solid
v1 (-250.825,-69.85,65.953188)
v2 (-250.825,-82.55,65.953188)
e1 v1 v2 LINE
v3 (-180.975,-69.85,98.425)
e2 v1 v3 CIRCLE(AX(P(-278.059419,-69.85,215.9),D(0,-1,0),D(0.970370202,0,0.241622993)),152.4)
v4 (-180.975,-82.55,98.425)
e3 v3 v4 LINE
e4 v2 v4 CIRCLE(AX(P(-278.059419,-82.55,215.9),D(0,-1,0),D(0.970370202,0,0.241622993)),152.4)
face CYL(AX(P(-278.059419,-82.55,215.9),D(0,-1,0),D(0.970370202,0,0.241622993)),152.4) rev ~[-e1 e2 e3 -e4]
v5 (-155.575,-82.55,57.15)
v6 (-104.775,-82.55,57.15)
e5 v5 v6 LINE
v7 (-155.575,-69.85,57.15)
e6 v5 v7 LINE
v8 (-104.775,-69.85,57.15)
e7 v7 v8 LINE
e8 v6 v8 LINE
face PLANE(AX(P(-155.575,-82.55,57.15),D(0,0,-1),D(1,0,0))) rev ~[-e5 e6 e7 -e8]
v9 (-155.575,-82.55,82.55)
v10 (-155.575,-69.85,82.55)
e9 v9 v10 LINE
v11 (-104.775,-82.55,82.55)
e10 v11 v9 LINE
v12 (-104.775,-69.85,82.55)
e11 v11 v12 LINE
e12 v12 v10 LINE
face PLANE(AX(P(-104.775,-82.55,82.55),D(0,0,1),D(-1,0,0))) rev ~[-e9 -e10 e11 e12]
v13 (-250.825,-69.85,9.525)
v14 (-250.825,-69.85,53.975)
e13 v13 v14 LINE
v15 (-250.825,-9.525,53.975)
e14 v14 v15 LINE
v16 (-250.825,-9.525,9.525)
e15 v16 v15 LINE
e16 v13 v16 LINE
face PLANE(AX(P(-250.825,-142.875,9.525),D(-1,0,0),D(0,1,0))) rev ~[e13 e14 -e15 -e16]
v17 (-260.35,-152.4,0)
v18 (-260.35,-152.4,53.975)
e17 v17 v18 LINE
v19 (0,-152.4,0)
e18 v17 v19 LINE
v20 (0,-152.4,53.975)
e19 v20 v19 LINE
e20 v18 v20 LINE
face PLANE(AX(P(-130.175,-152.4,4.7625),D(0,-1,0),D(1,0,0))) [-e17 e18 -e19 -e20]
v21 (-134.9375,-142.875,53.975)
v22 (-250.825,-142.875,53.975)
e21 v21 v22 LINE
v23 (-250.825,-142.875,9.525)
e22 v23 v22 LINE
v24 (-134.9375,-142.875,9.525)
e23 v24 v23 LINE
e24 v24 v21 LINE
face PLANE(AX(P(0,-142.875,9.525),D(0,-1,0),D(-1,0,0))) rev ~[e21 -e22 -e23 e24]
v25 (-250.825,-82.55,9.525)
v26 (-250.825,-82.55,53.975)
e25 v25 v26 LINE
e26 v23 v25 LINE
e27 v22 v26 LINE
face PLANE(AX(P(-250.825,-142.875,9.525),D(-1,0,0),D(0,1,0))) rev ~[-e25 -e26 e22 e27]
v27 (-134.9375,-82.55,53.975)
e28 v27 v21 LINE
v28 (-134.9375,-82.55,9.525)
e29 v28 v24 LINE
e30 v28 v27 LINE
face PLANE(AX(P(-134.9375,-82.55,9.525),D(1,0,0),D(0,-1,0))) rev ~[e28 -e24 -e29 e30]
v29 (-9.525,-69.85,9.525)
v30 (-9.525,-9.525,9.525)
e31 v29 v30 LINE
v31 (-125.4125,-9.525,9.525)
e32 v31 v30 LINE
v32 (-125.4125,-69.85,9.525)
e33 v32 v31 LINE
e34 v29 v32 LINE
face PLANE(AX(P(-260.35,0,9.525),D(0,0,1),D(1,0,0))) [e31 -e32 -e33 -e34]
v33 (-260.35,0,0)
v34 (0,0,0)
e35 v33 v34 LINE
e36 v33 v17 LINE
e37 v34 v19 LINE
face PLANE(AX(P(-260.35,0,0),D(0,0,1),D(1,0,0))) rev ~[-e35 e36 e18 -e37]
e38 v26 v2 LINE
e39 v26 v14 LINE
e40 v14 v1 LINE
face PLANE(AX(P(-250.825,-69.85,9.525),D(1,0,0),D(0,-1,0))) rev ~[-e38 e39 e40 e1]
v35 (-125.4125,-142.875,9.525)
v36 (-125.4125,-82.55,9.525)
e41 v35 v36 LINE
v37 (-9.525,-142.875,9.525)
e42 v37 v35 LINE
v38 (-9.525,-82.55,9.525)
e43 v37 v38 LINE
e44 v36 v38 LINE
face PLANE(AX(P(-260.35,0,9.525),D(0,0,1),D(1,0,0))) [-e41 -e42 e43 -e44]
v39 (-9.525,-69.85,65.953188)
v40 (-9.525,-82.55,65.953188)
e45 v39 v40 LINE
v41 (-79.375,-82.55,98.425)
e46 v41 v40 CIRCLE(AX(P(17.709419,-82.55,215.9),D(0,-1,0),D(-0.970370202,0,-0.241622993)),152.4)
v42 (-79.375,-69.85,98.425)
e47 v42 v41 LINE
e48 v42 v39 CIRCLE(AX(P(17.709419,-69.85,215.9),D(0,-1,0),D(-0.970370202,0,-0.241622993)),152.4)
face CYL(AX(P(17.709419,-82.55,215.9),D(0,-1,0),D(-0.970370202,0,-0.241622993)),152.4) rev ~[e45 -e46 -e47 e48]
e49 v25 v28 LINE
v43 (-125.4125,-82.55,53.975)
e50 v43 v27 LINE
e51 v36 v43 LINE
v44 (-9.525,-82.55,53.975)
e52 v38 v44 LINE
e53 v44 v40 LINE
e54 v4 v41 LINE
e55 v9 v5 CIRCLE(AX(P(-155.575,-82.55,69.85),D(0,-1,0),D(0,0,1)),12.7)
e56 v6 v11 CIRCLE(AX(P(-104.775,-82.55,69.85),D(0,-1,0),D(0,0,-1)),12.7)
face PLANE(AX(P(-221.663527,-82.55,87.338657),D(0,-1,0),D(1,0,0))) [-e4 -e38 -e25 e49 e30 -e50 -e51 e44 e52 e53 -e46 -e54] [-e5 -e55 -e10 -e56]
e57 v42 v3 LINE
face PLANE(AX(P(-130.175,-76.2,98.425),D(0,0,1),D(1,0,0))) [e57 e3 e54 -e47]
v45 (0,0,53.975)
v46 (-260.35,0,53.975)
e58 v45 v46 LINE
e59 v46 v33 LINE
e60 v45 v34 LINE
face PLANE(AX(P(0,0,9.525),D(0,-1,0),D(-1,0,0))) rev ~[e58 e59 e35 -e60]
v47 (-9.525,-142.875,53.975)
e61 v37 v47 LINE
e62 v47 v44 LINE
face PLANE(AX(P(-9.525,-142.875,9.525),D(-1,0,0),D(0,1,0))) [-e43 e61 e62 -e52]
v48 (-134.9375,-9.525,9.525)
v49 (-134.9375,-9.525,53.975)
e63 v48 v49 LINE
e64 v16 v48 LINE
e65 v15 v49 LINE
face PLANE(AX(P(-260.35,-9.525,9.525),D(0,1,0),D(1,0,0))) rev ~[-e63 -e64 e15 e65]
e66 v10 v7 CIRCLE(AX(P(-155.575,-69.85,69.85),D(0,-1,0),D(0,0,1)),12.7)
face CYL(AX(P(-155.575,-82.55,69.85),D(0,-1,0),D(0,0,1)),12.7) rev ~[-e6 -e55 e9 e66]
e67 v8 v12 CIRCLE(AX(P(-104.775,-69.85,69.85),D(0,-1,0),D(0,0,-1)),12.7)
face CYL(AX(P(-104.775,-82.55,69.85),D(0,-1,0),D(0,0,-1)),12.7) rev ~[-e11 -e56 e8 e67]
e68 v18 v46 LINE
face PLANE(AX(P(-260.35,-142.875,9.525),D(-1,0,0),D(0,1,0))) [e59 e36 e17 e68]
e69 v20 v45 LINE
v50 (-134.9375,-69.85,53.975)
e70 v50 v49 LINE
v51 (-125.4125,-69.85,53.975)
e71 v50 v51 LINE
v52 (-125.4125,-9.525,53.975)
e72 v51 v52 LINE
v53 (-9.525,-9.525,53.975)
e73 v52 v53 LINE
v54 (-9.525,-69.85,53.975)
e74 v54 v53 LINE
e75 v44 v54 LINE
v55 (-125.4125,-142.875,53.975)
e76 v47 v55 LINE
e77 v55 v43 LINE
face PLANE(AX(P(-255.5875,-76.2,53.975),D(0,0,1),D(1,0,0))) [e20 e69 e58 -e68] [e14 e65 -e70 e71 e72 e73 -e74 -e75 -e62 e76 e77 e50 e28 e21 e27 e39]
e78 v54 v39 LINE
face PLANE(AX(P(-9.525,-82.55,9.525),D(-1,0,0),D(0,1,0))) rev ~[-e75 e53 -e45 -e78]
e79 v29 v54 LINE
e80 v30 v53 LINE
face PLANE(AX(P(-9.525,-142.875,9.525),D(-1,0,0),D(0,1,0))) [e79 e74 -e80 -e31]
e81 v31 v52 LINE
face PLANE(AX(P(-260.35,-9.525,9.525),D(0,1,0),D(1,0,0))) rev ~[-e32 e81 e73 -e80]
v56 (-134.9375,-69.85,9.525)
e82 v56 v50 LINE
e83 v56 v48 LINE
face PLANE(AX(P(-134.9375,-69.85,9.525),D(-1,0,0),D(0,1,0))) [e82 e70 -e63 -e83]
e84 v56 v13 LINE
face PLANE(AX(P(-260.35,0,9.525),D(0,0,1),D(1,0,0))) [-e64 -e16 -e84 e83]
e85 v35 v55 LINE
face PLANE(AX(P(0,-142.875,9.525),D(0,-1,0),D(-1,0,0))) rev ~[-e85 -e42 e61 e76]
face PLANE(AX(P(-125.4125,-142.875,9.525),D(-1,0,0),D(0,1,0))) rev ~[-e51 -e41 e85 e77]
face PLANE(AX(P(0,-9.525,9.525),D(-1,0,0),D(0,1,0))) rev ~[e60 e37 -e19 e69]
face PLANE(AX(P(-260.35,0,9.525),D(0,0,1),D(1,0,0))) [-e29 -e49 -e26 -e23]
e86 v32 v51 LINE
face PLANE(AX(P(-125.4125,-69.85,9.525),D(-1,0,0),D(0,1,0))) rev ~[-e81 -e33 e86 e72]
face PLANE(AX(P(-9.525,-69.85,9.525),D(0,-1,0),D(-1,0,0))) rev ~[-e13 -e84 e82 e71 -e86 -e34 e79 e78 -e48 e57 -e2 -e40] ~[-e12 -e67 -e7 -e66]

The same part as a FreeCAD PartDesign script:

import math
import FreeCAD as App
import Part
import Sketcher
from FreeCAD import Vector
Q = App.Units.Quantity


def add_polygon(sketch, points):
    """Adds a closed chain of lines whose ends are joined by coincident constraints."""
    first, n = sketch.GeometryCount, len(points)
    for a, b in zip(points, points[1:] + points[:1]):
        sketch.addGeometry(Part.LineSegment(App.Vector(*a, 0), App.Vector(*b, 0)), False)
    for i in range(n):
        sketch.addConstraint(Sketcher.Constraint("Coincident", first + i, 2, first + (i + 1) % n, 1))

doc = App.newDocument("Part")
params = doc.addObject("Spreadsheet::Sheet", "Params")
for row, (alias, value) in enumerate([
    ("sketch1_width", "10.25 in"),
    ("sketch1_height", "0.375 in"),
    ("pad1_length", "6 in"),
    ("sketch2_width", "10.25 in"),
    ("sketch2_height", "0.375 in"),
    ("pad2_length", "1.75 in"),
    ("sketch3_height", "5.25 in"),
    ("sketch3_width", "0.375 in"),
    ("pad3_length", "1.75 in"),
    ("sketch4_width", "0.375 in"),
    ("sketch4_height", "2.375 in"),
    ("pad4_length", "1.75 in"),
    ("sketch5_width", "9.5 in"),
    ("sketch5_height", "0.5 in"),
    ("pad5_length", "3.5 in"),
    ("sketch6_radius", "6 in"),
    ("pad6_length", "1 in"),
    ("sketch7_radius", "6 in"),
    ("pocket1_length", "1 in"),
    ("sketch8_radius", "0.5 in"),
    ("sketch8_width", "2 in"),
    ("pocket2_length", "0.5 in"),
    ("sketch9_width", "0.375 in"),
    ("sketch9_height", "2.375 in"),
    ("pad7_length", "1.75 in"),
], start=1):
    params.set(f"A{row}", alias)
    params.set(f"B{row}", "=" + value)
    params.setAlias(f"B{row}", alias)

body = doc.addObject("PartDesign::Body", "Body")

# Sketch on XZ plane
sketch1 = body.newObject("Sketcher::SketchObject", "Sketch")
sketch1.AttachmentSupport = (doc.getObject("XZ_Plane"), [""])
sketch1.MapMode = "FlatFace"
add_polygon(sketch1, [(-260.35, 9.525), (-260.35, 0), (0, 0), (0, 9.525)])  # lines 0-3
sketch1.addConstraint(Sketcher.Constraint("Vertical", 0))
sketch1.addConstraint(Sketcher.Constraint("Horizontal", 1))
sketch1.addConstraint(Sketcher.Constraint("Vertical", 2))
sketch1.addConstraint(Sketcher.Constraint("Horizontal", 3))
sketch1.addConstraint(Sketcher.Constraint("Coincident", 1, 2, -1, 1))
sketch1.addConstraint(Sketcher.Constraint("DistanceX", 1, 1, 1, 2, Q("10.25 in")))
sketch1.addConstraint(Sketcher.Constraint("DistanceY", 0, 2, 0, 1, Q("0.375 in")))
sketch1.setExpression("Constraints[9]", "Params.sketch1_width")
sketch1.setExpression("Constraints[10]", "Params.sketch1_height")
pad1 = body.newObject("PartDesign::Pad", "Pad")
pad1.Profile = sketch1
pad1.setExpression("Length", "Params.pad1_length")

# Sketch on XY plane
sketch2 = body.newObject("Sketcher::SketchObject", "Sketch001")
sketch2.AttachmentSupport = (doc.getObject("XY_Plane"), [""])
sketch2.MapMode = "FlatFace"
sketch2.AttachmentOffset = App.Placement(Vector(0, 0, 0.375 * 25.4), App.Rotation())
add_polygon(sketch2, [(-260.35, 0), (-260.35, -9.525), (0, -9.525), (0, 0)])  # lines 0-3
add_polygon(sketch2, [(-260.35, -152.4), (0, -152.4), (0, -142.875), (-260.35, -142.875)])  # lines 4-7
sketch2.addConstraint(Sketcher.Constraint("Vertical", 0))
sketch2.addConstraint(Sketcher.Constraint("Horizontal", 1))
sketch2.addConstraint(Sketcher.Constraint("Vertical", 2))
sketch2.addConstraint(Sketcher.Constraint("Horizontal", 3))
sketch2.addConstraint(Sketcher.Constraint("Horizontal", 4))
sketch2.addConstraint(Sketcher.Constraint("Vertical", 5))
sketch2.addConstraint(Sketcher.Constraint("Horizontal", 6))
sketch2.addConstraint(Sketcher.Constraint("Vertical", 7))
sketch2.addConstraint(Sketcher.Constraint("Coincident", 2, 2, -1, 1))
sketch2.addConstraint(Sketcher.Constraint("PointOnObject", 4, 2, -2))
sketch2.addConstraint(Sketcher.Constraint("Vertical", 3, 2, 6, 2))
sketch2.addConstraint(Sketcher.Constraint("Equal", 2, 5))
sketch2.addConstraint(Sketcher.Constraint("DistanceY", 4, 2, -1, 1, Q("6 in")))
sketch2.addConstraint(Sketcher.Constraint("DistanceX", 1, 1, 1, 2, Q("10.25 in")))
sketch2.addConstraint(Sketcher.Constraint("DistanceY", 0, 2, 0, 1, Q("0.375 in")))
sketch2.setExpression("Constraints[21]", "Params.sketch2_width")
sketch2.setExpression("Constraints[22]", "Params.sketch2_height")
pad2 = body.newObject("PartDesign::Pad", "Pad001")
pad2.Profile = sketch2
pad2.setExpression("Length", "Params.pad2_length")

# Sketch on XY plane
sketch3 = body.newObject("Sketcher::SketchObject", "Sketch002")
sketch3.AttachmentSupport = (doc.getObject("XY_Plane"), [""])
sketch3.MapMode = "FlatFace"
sketch3.AttachmentOffset = App.Placement(Vector(0, 0, 0.375 * 25.4), App.Rotation())
add_polygon(sketch3, [(-260.35, -9.525), (-260.35, -142.875), (-250.825, -142.875), (-250.825, -9.525)])  # lines 0-3
add_polygon(sketch3, [(-9.525, -9.525), (-9.525, -142.875), (0, -142.875), (0, -9.525)])  # lines 4-7
sketch3.addConstraint(Sketcher.Constraint("Vertical", 0))
sketch3.addConstraint(Sketcher.Constraint("Horizontal", 1))
sketch3.addConstraint(Sketcher.Constraint("Vertical", 2))
sketch3.addConstraint(Sketcher.Constraint("Horizontal", 3))
sketch3.addConstraint(Sketcher.Constraint("Vertical", 4))
sketch3.addConstraint(Sketcher.Constraint("Horizontal", 5))
sketch3.addConstraint(Sketcher.Constraint("Vertical", 6))
sketch3.addConstraint(Sketcher.Constraint("Horizontal", 7))
sketch3.addConstraint(Sketcher.Constraint("PointOnObject", 5, 2, -2))
sketch3.addConstraint(Sketcher.Constraint("Horizontal", 1, 2, 4, 2))
sketch3.addConstraint(Sketcher.Constraint("Horizontal", 3, 2, 6, 2))
sketch3.addConstraint(Sketcher.Constraint("Equal", 3, 5))
sketch3.addConstraint(Sketcher.Constraint("DistanceY", 0, 2, 0, 1, Q("5.25 in")))
sketch3.addConstraint(Sketcher.Constraint("DistanceX", 1, 2, 4, 2, Q("9.5 in")))
sketch3.addConstraint(Sketcher.Constraint("DistanceX", 1, 1, 1, 2, Q("0.375 in")))
sketch3.addConstraint(Sketcher.Constraint("DistanceY", 0, 2, -1, 1, Q("5.625 in")))
sketch3.setExpression("Constraints[20]", "Params.sketch3_height")
sketch3.setExpression("Constraints[22]", "Params.sketch3_width")
pad3 = body.newObject("PartDesign::Pad", "Pad002")
pad3.Profile = sketch3
pad3.setExpression("Length", "Params.pad3_length")

# Sketch on XY plane
sketch4 = body.newObject("Sketcher::SketchObject", "Sketch003")
sketch4.AttachmentSupport = (doc.getObject("XY_Plane"), [""])
sketch4.MapMode = "FlatFace"
sketch4.AttachmentOffset = App.Placement(Vector(0, 0, 0.375 * 25.4), App.Rotation())
add_polygon(sketch4, [(-134.9375, -82.55), (-134.9375, -142.875), (-125.4125, -142.875), (-125.4125, -82.55)])  # lines 0-3
sketch4.addConstraint(Sketcher.Constraint("Vertical", 0))
sketch4.addConstraint(Sketcher.Constraint("Horizontal", 1))
sketch4.addConstraint(Sketcher.Constraint("Vertical", 2))
sketch4.addConstraint(Sketcher.Constraint("Horizontal", 3))
sketch4.addConstraint(Sketcher.Constraint("DistanceX", 1, 1, 1, 2, Q("0.375 in")))
sketch4.addConstraint(Sketcher.Constraint("DistanceY", 0, 2, 0, 1, Q("2.375 in")))
sketch4.addConstraint(Sketcher.Constraint("DistanceY", 2, 2, -1, 1, Q("3.25 in")))
sketch4.addConstraint(Sketcher.Constraint("DistanceX", 0, 2, -1, 1, Q("5.3125 in")))
sketch4.setExpression("Constraints[8]", "Params.sketch4_width")
sketch4.setExpression("Constraints[9]", "Params.sketch4_height")
pad4 = body.newObject("PartDesign::Pad", "Pad003")
pad4.Profile = sketch4
pad4.setExpression("Length", "Params.pad4_length")

# Sketch on XY plane
sketch5 = body.newObject("Sketcher::SketchObject", "Sketch004")
sketch5.AttachmentSupport = (doc.getObject("XY_Plane"), [""])
sketch5.MapMode = "FlatFace"
sketch5.AttachmentOffset = App.Placement(Vector(0, 0, 0.375 * 25.4), App.Rotation())
add_polygon(sketch5, [(-250.825, -69.85), (-250.825, -82.55), (-9.525, -82.55), (-9.525, -69.85)])  # lines 0-3
sketch5.addConstraint(Sketcher.Constraint("Vertical", 0))
sketch5.addConstraint(Sketcher.Constraint("Horizontal", 1))
sketch5.addConstraint(Sketcher.Constraint("Vertical", 2))
sketch5.addConstraint(Sketcher.Constraint("Horizontal", 3))
sketch5.addConstraint(Sketcher.Constraint("DistanceX", 1, 1, 1, 2, Q("9.5 in")))
sketch5.addConstraint(Sketcher.Constraint("DistanceY", 0, 2, 0, 1, Q("0.5 in")))
sketch5.addConstraint(Sketcher.Constraint("DistanceY", 0, 2, -1, 1, Q("3.25 in")))
sketch5.addConstraint(Sketcher.Constraint("DistanceX", 0, 2, -1, 1, Q("9.875 in")))
sketch5.setExpression("Constraints[8]", "Params.sketch5_width")
sketch5.setExpression("Constraints[9]", "Params.sketch5_height")
pad5 = body.newObject("PartDesign::Pad", "Pad004")
pad5.Profile = sketch5
pad5.setExpression("Length", "Params.pad5_length")

# Sketch on XZ plane
sketch6 = body.newObject("Sketcher::SketchObject", "Sketch005")
sketch6.AttachmentSupport = (doc.getObject("XZ_Plane"), [""])
sketch6.MapMode = "FlatFace"
sketch6.AttachmentOffset = App.Placement(Vector(0, 0, 3.25 * 25.4), App.Rotation())
sketch6.addGeometry(Part.ArcOfCircle(Part.Circle(Vector(-278.059419, 215.9, 0), Vector(0, 0, 1), 152.4), math.radians(13.982351), math.radians(346.017649)), False)
sketch6.addGeometry(Part.ArcOfCircle(Part.Circle(Vector(17.709419, 215.9, 0), Vector(0, 0, 1), 152.4), math.radians(-166.017649), math.radians(166.017649)), False)
sketch6.addConstraint(Sketcher.Constraint("Coincident", 0, 1, 1, 2))
sketch6.addConstraint(Sketcher.Constraint("Coincident", 1, 1, 0, 2))
sketch6.addConstraint(Sketcher.Constraint("Equal", 0, 1))
sketch6.addConstraint(Sketcher.Constraint("Horizontal", 0, 3, 1, 3))
sketch6.addConstraint(Sketcher.Constraint("Radius", 0, Q("6 in")))
sketch6.addConstraint(Sketcher.Constraint("DistanceY", -1, 1, 0, 3, Q("8.5 in")))
sketch6.addConstraint(Sketcher.Constraint("DistanceX", 0, 1, -1, 1, Q("5.125 in")))
sketch6.addConstraint(Sketcher.Constraint("DistanceX", 0, 3, -1, 1, Q("278.059419 mm")))
sketch6.setExpression("Constraints[4]", "Params.sketch6_radius")
pad6 = body.newObject("PartDesign::Pad", "Pad005")
pad6.Profile = sketch6
pad6.setExpression("Length", "Params.pad6_length")
pad6.Reversed = True

# Sketch on XZ plane
sketch7 = body.newObject("Sketcher::SketchObject", "Sketch006")
sketch7.AttachmentSupport = (doc.getObject("XZ_Plane"), [""])
sketch7.MapMode = "FlatFace"
sketch7.AttachmentOffset = App.Placement(Vector(0, 0, 3.25 * 25.4), App.Rotation())
sketch7.addGeometry(Part.ArcOfCircle(Part.Circle(Vector(-278.059419, 215.9, 0), Vector(0, 0, 1), 152.4), math.radians(13.982351), math.radians(346.017649)), False)
sketch7.addGeometry(Part.ArcOfCircle(Part.Circle(Vector(17.709419, 215.9, 0), Vector(0, 0, 1), 152.4), math.radians(-166.017649), math.radians(166.017649)), False)
sketch7.addConstraint(Sketcher.Constraint("Coincident", 0, 1, 1, 2))
sketch7.addConstraint(Sketcher.Constraint("Coincident", 1, 1, 0, 2))
sketch7.addConstraint(Sketcher.Constraint("Equal", 0, 1))
sketch7.addConstraint(Sketcher.Constraint("Horizontal", 0, 3, 1, 3))
sketch7.addConstraint(Sketcher.Constraint("Radius", 0, Q("6 in")))
sketch7.addConstraint(Sketcher.Constraint("DistanceY", -1, 1, 0, 3, Q("8.5 in")))
sketch7.addConstraint(Sketcher.Constraint("DistanceX", 0, 1, -1, 1, Q("5.125 in")))
sketch7.addConstraint(Sketcher.Constraint("DistanceX", 0, 3, -1, 1, Q("278.059419 mm")))
sketch7.setExpression("Constraints[4]", "Params.sketch7_radius")
pocket1 = body.newObject("PartDesign::Pocket", "Pocket")
pocket1.Profile = sketch7
pocket1.setExpression("Length", "Params.pocket1_length")

# Sketch on XZ plane
sketch8 = body.newObject("Sketcher::SketchObject", "Sketch007")
sketch8.AttachmentSupport = (doc.getObject("XZ_Plane"), [""])
sketch8.MapMode = "FlatFace"
sketch8.AttachmentOffset = App.Placement(Vector(0, 0, 3.25 * 25.4), App.Rotation())
sketch8.addGeometry(Part.LineSegment(Vector(-104.775, 82.55, 0), Vector(-155.575, 82.55, 0)), False)
sketch8.addGeometry(Part.ArcOfCircle(Part.Circle(Vector(-155.575, 69.85, 0), Vector(0, 0, 1), 12.7), math.radians(90), math.radians(270)), False)
sketch8.addGeometry(Part.LineSegment(Vector(-155.575, 57.15, 0), Vector(-104.775, 57.15, 0)), False)
sketch8.addGeometry(Part.ArcOfCircle(Part.Circle(Vector(-104.775, 69.85, 0), Vector(0, 0, 1), 12.7), math.radians(-90), math.radians(90)), False)
sketch8.addConstraint(Sketcher.Constraint("Tangent", 0, 2, 1, 1))
sketch8.addConstraint(Sketcher.Constraint("Tangent", 1, 2, 2, 1))
sketch8.addConstraint(Sketcher.Constraint("Tangent", 2, 2, 3, 1))
sketch8.addConstraint(Sketcher.Constraint("Tangent", 3, 2, 0, 1))
sketch8.addConstraint(Sketcher.Constraint("Horizontal", 0))
sketch8.addConstraint(Sketcher.Constraint("Horizontal", 2))
sketch8.addConstraint(Sketcher.Constraint("Radius", 1, Q("0.5 in")))
sketch8.addConstraint(Sketcher.Constraint("DistanceX", 0, 2, 0, 1, Q("2 in")))
sketch8.addConstraint(Sketcher.Constraint("DistanceY", -1, 1, 1, 3, Q("2.75 in")))
sketch8.addConstraint(Sketcher.Constraint("DistanceX", 1, 3, -1, 1, Q("6.125 in")))
sketch8.setExpression("Constraints[6]", "Params.sketch8_radius")
sketch8.setExpression("Constraints[7]", "Params.sketch8_width")
pocket2 = body.newObject("PartDesign::Pocket", "Pocket001")
pocket2.Profile = sketch8
pocket2.setExpression("Length", "Params.pocket2_length")

# Sketch on XY plane
sketch9 = body.newObject("Sketcher::SketchObject", "Sketch008")
sketch9.AttachmentSupport = (doc.getObject("XY_Plane"), [""])
sketch9.MapMode = "FlatFace"
sketch9.AttachmentOffset = App.Placement(Vector(0, 0, 0.375 * 25.4), App.Rotation())
add_polygon(sketch9, [(-134.9375, -9.525), (-134.9375, -69.85), (-125.4125, -69.85), (-125.4125, -9.525)])  # lines 0-3
sketch9.addConstraint(Sketcher.Constraint("Vertical", 0))
sketch9.addConstraint(Sketcher.Constraint("Horizontal", 1))
sketch9.addConstraint(Sketcher.Constraint("Vertical", 2))
sketch9.addConstraint(Sketcher.Constraint("Horizontal", 3))
sketch9.addConstraint(Sketcher.Constraint("DistanceX", 1, 1, 1, 2, Q("0.375 in")))
sketch9.addConstraint(Sketcher.Constraint("DistanceY", 0, 2, 0, 1, Q("2.375 in")))
sketch9.addConstraint(Sketcher.Constraint("DistanceY", 0, 2, -1, 1, Q("2.75 in")))
sketch9.addConstraint(Sketcher.Constraint("DistanceX", 0, 2, -1, 1, Q("5.3125 in")))
sketch9.setExpression("Constraints[8]", "Params.sketch9_width")
sketch9.setExpression("Constraints[9]", "Params.sketch9_height")
pad7 = body.newObject("PartDesign::Pad", "Pad006")
pad7.Profile = sketch9
pad7.setExpression("Length", "Params.pad7_length")

doc.recompute()
